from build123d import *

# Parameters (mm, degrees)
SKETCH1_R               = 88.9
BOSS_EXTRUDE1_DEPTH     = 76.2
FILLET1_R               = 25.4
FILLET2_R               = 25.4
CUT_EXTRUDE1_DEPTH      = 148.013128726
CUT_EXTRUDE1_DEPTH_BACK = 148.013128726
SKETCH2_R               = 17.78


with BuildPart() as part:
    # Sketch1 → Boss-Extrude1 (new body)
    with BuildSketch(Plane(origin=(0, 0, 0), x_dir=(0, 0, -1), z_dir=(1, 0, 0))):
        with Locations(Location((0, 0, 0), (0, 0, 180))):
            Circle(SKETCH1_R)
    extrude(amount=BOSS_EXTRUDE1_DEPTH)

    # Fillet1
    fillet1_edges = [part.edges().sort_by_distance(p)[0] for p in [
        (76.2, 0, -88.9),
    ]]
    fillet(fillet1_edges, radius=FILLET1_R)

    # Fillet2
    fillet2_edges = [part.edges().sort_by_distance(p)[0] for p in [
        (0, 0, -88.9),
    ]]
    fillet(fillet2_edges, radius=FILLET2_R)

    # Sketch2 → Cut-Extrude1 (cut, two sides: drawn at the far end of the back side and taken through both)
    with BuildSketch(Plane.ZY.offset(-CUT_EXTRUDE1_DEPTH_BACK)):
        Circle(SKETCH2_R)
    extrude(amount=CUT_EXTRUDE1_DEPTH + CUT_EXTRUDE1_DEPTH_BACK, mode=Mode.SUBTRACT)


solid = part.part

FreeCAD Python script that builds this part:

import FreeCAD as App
import Part
import Sketcher

V = App.Vector
Q = App.Units.Quantity


def edges_at(feature, points):
    """Names of the edges that pass closest to the given points."""
    edges = feature.Shape.Edges
    near = lambda p: min(range(len(edges)), key=lambda i: edges[i].distToShape(Part.Vertex(*p))[0])
    return sorted({f"Edge{near(p) + 1}" for p in points})

doc = App.newDocument("Part")
body = doc.addObject("PartDesign::Body", "Body")

# Sketch on YZ plane
sketch1 = body.newObject("Sketcher::SketchObject", "Sketch")
sketch1.AttachmentSupport = (doc.getObject("YZ_Plane"), [""])
sketch1.MapMode = "FlatFace"
sketch1.addGeometry(Part.Circle(V(0, 0, 0), V(0, 0, 1), 88.9), False)
sketch1.addConstraint([
    Sketcher.Constraint("Coincident", 0, 3, -1, 1),
    Sketcher.Constraint("Diameter", 0, Q("7 in")),
])
pad1 = body.newObject("PartDesign::Pad", "Pad")
pad1.Profile = sketch1
pad1.Length = Q("3 in")
doc.recompute()

fillet = body.newObject("PartDesign::Fillet", "Fillet")
fillet.Base = (pad1, edges_at(pad1, [(76.2, 0, -88.9)]))
fillet.Radius = Q("1 in")
doc.recompute()

fillet2 = body.newObject("PartDesign::Fillet", "Fillet001")
fillet2.Base = (fillet, edges_at(fillet, [(0, 0, -88.9)]))
fillet2.Radius = Q("1 in")

# Sketch on YZ plane
sketch2 = body.newObject("Sketcher::SketchObject", "Sketch001")
sketch2.AttachmentSupport = (doc.getObject("YZ_Plane"), [""])
sketch2.MapMode = "FlatFace"
sketch2.addGeometry(Part.Circle(V(0, 0, 0), V(0, 0, 1), 17.78), False)
sketch2.addConstraint([
    Sketcher.Constraint("Coincident", 0, 3, -1, 1),
    Sketcher.Constraint("Diameter", 0, Q("1.4 in")),
])
pocket1 = body.newObject("PartDesign::Pocket", "Pocket")
pocket1.Profile = sketch2
pocket1.Type = "ThroughAll"
pocket1.Midplane = True

doc.recompute()
